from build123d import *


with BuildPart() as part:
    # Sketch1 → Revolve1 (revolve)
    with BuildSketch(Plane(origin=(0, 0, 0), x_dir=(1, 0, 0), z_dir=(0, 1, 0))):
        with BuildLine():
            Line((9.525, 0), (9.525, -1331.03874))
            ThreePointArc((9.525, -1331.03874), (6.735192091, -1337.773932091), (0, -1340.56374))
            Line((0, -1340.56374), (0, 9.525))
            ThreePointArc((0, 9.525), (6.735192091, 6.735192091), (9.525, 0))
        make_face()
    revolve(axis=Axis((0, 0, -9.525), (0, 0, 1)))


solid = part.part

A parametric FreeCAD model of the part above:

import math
import FreeCAD as App
import Part
import Sketcher
Q = App.Units.Quantity

doc = App.newDocument("Part")
body = doc.addObject("PartDesign::Body", "Body")

sketch1 = body.newObject("Sketcher::SketchObject", "Sketch")
sketch1.AttachmentSupport = (doc.getObject("XZ_Plane"), [""])
sketch1.MapMode = "FlatFace"
sketch1.addGeometry([
    Part.LineSegment(App.Vector(10, 1331, 0), App.Vector(10, 0, 0)),
    Part.ArcOfCircle(Part.Circle(App.Vector(0, 0, 0), App.Vector(0, 0, 1), 10), math.radians(-90), math.radians(0)),
    Part.LineSegment(App.Vector(0, -10, 0), App.Vector(0, 1341, 0)),
    Part.ArcOfCircle(Part.Circle(App.Vector(0, 1331, 0), App.Vector(0, 0, 1), 10), math.radians(0), math.radians(90)),
], False)
sketch1.addConstraint([
    Sketcher.Constraint("Tangent", 0, 2, 1, 2),
    Sketcher.Constraint("Coincident", 1, 1, 2, 1),
    Sketcher.Constraint("Coincident", 2, 2, 3, 2),
    Sketcher.Constraint("Tangent", 3, 1, 0, 1),
    Sketcher.Constraint("Vertical", 0),
    Sketcher.Constraint("Vertical", 2),
    Sketcher.Constraint("Coincident", 1, 3, -1, 1),
    Sketcher.Constraint("Equal", 1, 3),
    Sketcher.Constraint("PointOnObject", 1, 1, -2),
    Sketcher.Constraint("Radius", 1, Q("0.375 in")),
    Sketcher.Constraint("DistanceY", 0, 2, 0, 1, Q("52.4031 in")),
])
revolution = body.newObject("PartDesign::Revolution", "Revolution")
revolution.Profile = sketch1
revolution.ReferenceAxis = (sketch1, ["V_Axis"])
revolution.Angle = 360

doc.recompute()
